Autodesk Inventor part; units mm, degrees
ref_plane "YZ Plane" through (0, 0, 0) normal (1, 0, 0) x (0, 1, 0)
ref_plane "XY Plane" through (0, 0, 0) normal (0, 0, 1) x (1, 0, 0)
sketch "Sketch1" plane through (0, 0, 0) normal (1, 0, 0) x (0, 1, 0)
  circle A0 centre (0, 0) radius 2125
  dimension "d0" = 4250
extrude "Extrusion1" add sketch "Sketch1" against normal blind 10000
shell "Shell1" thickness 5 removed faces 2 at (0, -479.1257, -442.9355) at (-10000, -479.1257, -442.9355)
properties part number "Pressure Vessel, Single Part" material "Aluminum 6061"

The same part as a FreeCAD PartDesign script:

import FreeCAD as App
import Part
import Sketcher
Q = App.Units.Quantity


def faces_at(feature, points):
    """Names of the faces that lie closest to the given points."""
    faces = feature.Shape.Faces
    near = lambda p: min(range(len(faces)), key=lambda i: faces[i].distToShape(Part.Vertex(*p))[0])
    return sorted({f"Face{near(p) + 1}" for p in points})

doc = App.newDocument("Part")
body = doc.addObject("PartDesign::Body", "Body")

# Sketch on YZ plane
sketch1 = body.newObject("Sketcher::SketchObject", "Sketch")
sketch1.AttachmentSupport = (doc.getObject("YZ_Plane"), [""])
sketch1.MapMode = "FlatFace"
sketch1.addGeometry(Part.Circle(App.Vector(0, 0, 0), App.Vector(0, 0, 1), 2125), False)
sketch1.addConstraint([
    Sketcher.Constraint("Coincident", 0, 3, -1, 1),
    Sketcher.Constraint("Diameter", 0, Q("4250 mm")),
])
pad1 = body.newObject("PartDesign::Pad", "Pad")
pad1.Profile = sketch1
pad1.Length = 10000
pad1.Reversed = True
doc.recompute()

thickness = body.newObject("PartDesign::Thickness", "Thickness")
thickness.Base = (pad1, faces_at(pad1, [(0, -479.126, -442.935), (-10000, -479.126, -442.935)]))
thickness.Value = 5
thickness.Reversed = True
thickness.Join = "Intersection"

doc.recompute()
